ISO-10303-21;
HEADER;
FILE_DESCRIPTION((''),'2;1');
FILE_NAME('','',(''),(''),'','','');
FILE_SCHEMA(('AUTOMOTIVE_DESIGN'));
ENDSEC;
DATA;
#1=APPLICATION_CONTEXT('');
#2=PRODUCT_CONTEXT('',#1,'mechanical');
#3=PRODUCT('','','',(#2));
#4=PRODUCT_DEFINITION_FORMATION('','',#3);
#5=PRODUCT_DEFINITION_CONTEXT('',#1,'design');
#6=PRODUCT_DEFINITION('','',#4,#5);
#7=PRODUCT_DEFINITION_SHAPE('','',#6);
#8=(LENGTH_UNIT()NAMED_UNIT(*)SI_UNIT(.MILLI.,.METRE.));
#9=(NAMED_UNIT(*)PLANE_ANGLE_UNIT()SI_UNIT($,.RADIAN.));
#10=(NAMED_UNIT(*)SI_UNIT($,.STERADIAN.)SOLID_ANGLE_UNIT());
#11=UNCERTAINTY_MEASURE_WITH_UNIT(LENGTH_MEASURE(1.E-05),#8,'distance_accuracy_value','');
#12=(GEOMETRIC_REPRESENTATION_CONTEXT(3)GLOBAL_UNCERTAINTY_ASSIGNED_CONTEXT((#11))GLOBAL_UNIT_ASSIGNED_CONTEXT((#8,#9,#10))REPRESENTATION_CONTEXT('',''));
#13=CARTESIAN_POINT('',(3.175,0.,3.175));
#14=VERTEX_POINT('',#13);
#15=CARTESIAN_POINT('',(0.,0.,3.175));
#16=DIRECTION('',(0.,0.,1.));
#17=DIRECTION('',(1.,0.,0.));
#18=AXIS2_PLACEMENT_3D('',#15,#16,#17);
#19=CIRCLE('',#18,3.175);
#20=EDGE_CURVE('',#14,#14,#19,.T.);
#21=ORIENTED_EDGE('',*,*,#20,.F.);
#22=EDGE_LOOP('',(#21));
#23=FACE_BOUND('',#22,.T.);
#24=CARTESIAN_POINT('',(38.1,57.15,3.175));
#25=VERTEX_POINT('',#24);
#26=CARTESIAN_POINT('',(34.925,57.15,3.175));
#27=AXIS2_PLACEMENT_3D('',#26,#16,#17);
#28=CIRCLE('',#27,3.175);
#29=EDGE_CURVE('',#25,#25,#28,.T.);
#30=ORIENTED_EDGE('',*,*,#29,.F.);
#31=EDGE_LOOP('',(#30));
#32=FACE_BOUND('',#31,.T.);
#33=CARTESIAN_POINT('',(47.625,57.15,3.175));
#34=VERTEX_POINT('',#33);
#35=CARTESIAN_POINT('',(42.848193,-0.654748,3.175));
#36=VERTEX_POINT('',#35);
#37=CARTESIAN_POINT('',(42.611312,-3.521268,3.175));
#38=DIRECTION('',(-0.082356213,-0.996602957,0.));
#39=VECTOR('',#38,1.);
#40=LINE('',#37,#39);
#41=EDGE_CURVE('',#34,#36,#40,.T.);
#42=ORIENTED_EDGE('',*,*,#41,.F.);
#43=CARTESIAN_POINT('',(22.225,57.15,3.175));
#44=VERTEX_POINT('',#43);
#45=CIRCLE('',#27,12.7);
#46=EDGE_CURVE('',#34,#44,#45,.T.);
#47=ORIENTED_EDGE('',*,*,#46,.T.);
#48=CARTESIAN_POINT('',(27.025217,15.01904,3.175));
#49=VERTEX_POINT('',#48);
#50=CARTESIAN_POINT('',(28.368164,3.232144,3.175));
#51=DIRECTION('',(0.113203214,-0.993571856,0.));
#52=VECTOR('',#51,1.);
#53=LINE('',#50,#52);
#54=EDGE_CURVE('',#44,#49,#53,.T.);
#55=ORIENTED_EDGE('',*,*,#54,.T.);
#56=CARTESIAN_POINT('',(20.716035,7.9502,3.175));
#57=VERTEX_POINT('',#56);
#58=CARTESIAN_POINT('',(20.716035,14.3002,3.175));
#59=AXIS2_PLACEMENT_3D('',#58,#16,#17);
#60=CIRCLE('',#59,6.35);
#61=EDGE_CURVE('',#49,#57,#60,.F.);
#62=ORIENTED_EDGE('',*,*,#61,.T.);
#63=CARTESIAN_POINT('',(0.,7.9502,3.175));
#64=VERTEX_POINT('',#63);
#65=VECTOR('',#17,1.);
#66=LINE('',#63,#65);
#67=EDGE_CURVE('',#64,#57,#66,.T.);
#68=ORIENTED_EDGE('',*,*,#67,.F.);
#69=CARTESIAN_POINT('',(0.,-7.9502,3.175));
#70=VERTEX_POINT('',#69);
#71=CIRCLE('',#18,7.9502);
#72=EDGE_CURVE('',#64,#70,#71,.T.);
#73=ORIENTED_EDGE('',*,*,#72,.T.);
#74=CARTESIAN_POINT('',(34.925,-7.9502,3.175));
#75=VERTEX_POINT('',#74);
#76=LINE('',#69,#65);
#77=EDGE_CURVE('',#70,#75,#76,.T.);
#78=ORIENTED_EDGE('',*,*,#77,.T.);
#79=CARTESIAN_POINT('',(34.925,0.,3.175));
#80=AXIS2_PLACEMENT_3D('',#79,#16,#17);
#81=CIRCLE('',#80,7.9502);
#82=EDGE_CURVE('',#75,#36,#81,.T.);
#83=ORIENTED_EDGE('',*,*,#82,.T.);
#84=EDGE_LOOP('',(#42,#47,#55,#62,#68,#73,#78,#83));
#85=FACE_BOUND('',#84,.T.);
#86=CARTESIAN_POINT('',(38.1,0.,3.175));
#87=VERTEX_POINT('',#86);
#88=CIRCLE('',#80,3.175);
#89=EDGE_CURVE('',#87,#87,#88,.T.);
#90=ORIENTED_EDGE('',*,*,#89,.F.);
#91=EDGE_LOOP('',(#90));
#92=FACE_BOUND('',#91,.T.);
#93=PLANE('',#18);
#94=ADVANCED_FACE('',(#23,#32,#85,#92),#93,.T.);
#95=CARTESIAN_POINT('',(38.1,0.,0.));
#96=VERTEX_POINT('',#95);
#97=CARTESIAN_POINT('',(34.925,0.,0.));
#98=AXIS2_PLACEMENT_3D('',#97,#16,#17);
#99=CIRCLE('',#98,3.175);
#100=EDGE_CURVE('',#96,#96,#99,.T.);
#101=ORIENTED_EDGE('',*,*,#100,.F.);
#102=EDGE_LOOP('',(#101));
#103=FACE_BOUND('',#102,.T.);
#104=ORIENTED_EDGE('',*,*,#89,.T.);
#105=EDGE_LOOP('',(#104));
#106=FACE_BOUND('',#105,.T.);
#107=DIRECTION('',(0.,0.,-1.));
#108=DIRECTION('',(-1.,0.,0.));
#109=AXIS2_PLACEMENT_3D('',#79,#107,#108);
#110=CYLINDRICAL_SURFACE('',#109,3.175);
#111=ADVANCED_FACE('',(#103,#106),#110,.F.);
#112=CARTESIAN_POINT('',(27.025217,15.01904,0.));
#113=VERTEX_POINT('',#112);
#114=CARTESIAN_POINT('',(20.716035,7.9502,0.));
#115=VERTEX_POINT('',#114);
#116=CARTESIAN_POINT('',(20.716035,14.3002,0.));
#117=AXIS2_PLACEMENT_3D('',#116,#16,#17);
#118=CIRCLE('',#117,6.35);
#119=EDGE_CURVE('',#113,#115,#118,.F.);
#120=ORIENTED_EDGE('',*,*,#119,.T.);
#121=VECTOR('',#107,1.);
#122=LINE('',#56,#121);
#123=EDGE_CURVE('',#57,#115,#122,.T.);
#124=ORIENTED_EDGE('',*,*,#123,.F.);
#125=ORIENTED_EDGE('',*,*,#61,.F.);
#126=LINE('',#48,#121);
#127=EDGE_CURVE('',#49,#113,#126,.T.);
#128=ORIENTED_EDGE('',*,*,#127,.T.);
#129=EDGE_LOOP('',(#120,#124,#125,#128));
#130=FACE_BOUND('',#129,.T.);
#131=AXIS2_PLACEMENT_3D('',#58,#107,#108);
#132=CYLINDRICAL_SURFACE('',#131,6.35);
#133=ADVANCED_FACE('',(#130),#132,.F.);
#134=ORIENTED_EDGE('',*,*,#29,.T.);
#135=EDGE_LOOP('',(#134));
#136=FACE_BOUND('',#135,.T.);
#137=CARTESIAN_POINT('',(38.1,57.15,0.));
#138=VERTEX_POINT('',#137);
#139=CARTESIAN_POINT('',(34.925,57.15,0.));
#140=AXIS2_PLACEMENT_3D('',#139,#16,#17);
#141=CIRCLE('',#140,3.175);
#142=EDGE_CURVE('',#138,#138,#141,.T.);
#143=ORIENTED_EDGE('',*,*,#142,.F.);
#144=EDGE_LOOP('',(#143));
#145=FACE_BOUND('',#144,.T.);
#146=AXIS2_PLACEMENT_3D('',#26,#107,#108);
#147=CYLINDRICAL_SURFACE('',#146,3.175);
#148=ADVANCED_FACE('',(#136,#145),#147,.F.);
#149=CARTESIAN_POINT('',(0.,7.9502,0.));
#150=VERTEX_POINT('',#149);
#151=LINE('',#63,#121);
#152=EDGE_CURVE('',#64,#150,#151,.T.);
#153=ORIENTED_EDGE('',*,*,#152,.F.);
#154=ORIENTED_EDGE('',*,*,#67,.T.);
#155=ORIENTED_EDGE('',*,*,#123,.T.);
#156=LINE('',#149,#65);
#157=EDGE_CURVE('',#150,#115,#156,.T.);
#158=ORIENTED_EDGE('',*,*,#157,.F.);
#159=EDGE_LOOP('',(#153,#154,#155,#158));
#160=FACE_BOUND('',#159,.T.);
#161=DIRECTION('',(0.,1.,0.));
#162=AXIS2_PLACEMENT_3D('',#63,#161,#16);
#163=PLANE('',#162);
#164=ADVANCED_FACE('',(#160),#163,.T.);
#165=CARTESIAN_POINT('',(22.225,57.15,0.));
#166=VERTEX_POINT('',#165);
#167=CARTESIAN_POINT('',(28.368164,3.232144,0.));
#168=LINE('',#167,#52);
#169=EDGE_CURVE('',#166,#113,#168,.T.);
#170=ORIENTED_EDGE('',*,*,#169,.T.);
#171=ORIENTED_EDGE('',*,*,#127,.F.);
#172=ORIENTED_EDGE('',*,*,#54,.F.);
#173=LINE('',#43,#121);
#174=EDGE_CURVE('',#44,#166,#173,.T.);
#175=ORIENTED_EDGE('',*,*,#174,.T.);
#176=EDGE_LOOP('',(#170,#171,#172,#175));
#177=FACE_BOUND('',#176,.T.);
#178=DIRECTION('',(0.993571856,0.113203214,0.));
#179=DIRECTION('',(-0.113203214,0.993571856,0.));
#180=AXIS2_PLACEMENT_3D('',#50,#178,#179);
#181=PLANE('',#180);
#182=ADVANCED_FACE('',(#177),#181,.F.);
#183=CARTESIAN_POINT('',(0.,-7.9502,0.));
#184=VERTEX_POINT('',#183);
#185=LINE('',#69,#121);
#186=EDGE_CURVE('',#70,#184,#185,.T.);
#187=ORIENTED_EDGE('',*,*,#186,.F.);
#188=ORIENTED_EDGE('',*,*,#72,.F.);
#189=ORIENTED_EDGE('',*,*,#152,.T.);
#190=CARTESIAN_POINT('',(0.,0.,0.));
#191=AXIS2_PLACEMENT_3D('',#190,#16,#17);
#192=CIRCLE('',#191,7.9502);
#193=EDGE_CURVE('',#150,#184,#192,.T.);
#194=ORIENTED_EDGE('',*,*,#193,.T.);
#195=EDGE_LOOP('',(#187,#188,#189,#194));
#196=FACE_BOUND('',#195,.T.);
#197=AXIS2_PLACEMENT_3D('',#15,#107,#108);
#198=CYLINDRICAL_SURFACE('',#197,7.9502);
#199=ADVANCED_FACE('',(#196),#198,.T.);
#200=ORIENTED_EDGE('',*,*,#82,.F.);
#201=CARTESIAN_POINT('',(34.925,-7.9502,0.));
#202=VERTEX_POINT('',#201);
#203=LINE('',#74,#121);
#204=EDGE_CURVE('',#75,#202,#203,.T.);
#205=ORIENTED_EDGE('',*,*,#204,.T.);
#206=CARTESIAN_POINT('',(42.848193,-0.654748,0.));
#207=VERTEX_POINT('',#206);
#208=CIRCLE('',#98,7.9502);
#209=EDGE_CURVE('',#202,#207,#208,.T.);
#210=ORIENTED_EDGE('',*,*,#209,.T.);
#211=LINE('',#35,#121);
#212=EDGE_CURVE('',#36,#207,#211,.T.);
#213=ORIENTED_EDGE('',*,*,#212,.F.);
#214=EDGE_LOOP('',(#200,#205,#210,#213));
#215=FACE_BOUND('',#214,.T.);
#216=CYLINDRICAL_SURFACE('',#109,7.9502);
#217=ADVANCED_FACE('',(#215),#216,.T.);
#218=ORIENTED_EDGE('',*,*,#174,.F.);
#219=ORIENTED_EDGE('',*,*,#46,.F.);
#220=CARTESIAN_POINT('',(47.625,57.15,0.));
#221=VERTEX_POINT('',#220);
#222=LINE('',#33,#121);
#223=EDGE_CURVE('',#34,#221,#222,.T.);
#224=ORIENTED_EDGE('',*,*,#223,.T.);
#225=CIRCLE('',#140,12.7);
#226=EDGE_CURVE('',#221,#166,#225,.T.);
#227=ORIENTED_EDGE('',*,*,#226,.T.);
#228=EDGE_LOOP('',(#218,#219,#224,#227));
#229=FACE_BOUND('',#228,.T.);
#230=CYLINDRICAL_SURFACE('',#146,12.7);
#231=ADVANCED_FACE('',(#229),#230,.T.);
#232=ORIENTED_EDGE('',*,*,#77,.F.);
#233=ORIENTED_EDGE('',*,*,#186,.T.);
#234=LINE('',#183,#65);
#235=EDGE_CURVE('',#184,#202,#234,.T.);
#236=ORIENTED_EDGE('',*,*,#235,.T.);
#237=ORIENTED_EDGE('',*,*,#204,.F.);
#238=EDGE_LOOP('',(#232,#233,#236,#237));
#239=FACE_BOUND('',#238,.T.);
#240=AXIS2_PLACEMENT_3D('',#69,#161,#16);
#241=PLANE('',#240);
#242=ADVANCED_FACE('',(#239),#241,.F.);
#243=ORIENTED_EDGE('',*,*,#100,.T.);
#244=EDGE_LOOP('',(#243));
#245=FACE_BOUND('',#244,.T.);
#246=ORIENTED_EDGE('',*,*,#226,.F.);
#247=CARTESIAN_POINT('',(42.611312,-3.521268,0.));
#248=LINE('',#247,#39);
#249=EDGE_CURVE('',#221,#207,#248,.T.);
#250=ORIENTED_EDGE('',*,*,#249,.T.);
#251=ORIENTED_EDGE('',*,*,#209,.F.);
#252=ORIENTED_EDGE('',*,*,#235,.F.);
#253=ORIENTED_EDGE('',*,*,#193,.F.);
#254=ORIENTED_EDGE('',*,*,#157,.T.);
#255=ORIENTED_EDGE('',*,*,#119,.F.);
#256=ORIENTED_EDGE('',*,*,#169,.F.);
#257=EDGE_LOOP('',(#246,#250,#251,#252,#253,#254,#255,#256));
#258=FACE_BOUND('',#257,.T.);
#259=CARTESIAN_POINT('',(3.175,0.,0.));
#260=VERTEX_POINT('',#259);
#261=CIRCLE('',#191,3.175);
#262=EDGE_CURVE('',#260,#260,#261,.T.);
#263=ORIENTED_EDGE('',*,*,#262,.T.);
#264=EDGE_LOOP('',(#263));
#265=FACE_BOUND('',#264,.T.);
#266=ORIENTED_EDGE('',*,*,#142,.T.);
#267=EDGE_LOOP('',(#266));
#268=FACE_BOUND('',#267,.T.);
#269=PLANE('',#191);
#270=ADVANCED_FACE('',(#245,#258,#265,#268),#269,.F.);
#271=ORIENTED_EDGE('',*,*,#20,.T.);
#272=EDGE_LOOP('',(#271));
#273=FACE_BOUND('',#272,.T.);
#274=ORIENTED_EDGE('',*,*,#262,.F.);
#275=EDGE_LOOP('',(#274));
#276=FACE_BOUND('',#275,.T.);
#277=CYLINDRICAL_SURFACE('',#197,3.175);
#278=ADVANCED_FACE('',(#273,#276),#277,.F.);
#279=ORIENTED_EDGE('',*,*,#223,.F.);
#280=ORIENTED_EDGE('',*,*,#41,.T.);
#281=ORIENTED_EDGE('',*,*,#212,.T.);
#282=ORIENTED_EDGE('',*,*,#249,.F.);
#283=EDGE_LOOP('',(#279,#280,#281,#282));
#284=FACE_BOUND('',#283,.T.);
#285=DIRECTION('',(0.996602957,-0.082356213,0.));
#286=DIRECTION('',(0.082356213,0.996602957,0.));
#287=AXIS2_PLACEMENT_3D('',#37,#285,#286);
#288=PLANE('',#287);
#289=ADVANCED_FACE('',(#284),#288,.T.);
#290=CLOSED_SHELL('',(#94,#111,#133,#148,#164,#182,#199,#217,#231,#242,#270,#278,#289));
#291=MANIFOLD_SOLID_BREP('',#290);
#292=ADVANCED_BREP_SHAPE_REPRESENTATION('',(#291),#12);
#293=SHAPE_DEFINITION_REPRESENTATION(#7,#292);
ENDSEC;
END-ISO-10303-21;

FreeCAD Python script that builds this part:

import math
import FreeCAD as App
import Part
import Sketcher

V = App.Vector
Q = App.Units.Quantity

doc = App.newDocument("Part")
body = doc.addObject("PartDesign::Body", "Body")

# Sketch on XY plane
sketch1 = body.newObject("Sketcher::SketchObject", "Sketch")
sketch1.AttachmentSupport = (doc.getObject("XY_Plane"), [""])
sketch1.MapMode = "FlatFace"
sketch1.addGeometry([
    Part.LineSegment(V(20.7, 8, 0), V(0, 8, 0)),  # 0
    Part.ArcOfCircle(Part.Circle(V(0, 0, 0), V(0, 0, 1), 8), math.radians(90), math.radians(270)),  # 1
    Part.LineSegment(V(0, -8, 0), V(34.9, -8, 0)),  # 2
    Part.ArcOfCircle(Part.Circle(V(34.9, 0, 0), V(0, 0, 1), 8), math.radians(-90), math.radians(-5)),  # 3
    Part.LineSegment(V(42.8, -0.7, 0), V(47.5, 55.1, 0)),  # 4
    Part.LineSegment(V(47.5, 55.1, 0), V(47.6, 57.1, 0)),  # 5
    Part.ArcOfCircle(Part.Circle(V(34.9, 57.1, 0), V(0, 0, 1), 12.7), math.radians(0), math.radians(180)),  # 6
    Part.LineSegment(V(22.2, 57.1, 0), V(22.6, 54.3, 0)),  # 7
    Part.LineSegment(V(22.6, 54.3, 0), V(27, 15, 0)),  # 8
    Part.ArcOfCircle(Part.Circle(V(20.7, 14.3, 0), V(0, 0, 1), 6.3), math.radians(-90), math.radians(6)),  # 9
    Part.Circle(V(0, 0, 0), V(0, 0, 1), 3.2),  # 10
    Part.Circle(V(34.9, 0, 0), V(0, 0, 1), 3.2),  # 11
    Part.Circle(V(34.9, 57.1, 0), V(0, 0, 1), 3.2),  # 12
], False)
sketch1.addConstraint([
    Sketcher.Constraint("Tangent", 0, 2, 1, 1),
    Sketcher.Constraint("Tangent", 1, 2, 2, 1),
    Sketcher.Constraint("Tangent", 2, 2, 3, 1),
    Sketcher.Constraint("Tangent", 3, 2, 4, 1),
    Sketcher.Constraint("Coincident", 4, 2, 5, 1),
    Sketcher.Constraint("Coincident", 5, 2, 6, 1),
    Sketcher.Constraint("Coincident", 6, 2, 7, 1),
    Sketcher.Constraint("Coincident", 7, 2, 8, 1),
    Sketcher.Constraint("Tangent", 8, 2, 9, 2),
    Sketcher.Constraint("Tangent", 9, 1, 0, 1),
    Sketcher.Constraint("Horizontal", 0),
    Sketcher.Constraint("Horizontal", 2),
    Sketcher.Constraint("Coincident", 1, 3, -1, 1),
    Sketcher.Constraint("Coincident", 10, 3, -1, 1),
    Sketcher.Constraint("Coincident", 11, 3, 3, 3),
    Sketcher.Constraint("Coincident", 12, 3, 6, 3),
    Sketcher.Constraint("Equal", 1, 3),
    Sketcher.Constraint("Equal", 10, 11),
    Sketcher.Constraint("Equal", 11, 12),
    Sketcher.Constraint("Parallel", 4, 5),
    Sketcher.Constraint("Parallel", 7, 8),
    Sketcher.Constraint("Horizontal", 12, 3, 5, 2),
    Sketcher.Constraint("Horizontal", 5, 2, 6, 2),
    Sketcher.Constraint("Vertical", 3, 3, 6, 3),
    Sketcher.Constraint("Radius", 6, Q("0.5 in")),
    Sketcher.Constraint("Diameter", 10, Q("0.25 in")),
    Sketcher.Constraint("Radius", 9, Q("0.25 in")),
    Sketcher.Constraint("Radius", 1, Q("0.313 in")),
    Sketcher.Constraint("Angle", 7, Q("-83.5 deg")),
    Sketcher.Constraint("DistanceX", 2, 1, 2, 2, Q("1.375 in")),
    Sketcher.Constraint("DistanceY", -1, 1, 6, 3, Q("2.25 in")),
    Sketcher.Constraint("DistanceX", -1, 1, 7, 2, 22.5505),
    Sketcher.Constraint("DistanceY", -1, 1, 4, 2, 55.065258),
])
pad1 = body.newObject("PartDesign::Pad", "Pad")
pad1.Profile = sketch1
pad1.Length = Q("0.125 in")

doc.recompute()
